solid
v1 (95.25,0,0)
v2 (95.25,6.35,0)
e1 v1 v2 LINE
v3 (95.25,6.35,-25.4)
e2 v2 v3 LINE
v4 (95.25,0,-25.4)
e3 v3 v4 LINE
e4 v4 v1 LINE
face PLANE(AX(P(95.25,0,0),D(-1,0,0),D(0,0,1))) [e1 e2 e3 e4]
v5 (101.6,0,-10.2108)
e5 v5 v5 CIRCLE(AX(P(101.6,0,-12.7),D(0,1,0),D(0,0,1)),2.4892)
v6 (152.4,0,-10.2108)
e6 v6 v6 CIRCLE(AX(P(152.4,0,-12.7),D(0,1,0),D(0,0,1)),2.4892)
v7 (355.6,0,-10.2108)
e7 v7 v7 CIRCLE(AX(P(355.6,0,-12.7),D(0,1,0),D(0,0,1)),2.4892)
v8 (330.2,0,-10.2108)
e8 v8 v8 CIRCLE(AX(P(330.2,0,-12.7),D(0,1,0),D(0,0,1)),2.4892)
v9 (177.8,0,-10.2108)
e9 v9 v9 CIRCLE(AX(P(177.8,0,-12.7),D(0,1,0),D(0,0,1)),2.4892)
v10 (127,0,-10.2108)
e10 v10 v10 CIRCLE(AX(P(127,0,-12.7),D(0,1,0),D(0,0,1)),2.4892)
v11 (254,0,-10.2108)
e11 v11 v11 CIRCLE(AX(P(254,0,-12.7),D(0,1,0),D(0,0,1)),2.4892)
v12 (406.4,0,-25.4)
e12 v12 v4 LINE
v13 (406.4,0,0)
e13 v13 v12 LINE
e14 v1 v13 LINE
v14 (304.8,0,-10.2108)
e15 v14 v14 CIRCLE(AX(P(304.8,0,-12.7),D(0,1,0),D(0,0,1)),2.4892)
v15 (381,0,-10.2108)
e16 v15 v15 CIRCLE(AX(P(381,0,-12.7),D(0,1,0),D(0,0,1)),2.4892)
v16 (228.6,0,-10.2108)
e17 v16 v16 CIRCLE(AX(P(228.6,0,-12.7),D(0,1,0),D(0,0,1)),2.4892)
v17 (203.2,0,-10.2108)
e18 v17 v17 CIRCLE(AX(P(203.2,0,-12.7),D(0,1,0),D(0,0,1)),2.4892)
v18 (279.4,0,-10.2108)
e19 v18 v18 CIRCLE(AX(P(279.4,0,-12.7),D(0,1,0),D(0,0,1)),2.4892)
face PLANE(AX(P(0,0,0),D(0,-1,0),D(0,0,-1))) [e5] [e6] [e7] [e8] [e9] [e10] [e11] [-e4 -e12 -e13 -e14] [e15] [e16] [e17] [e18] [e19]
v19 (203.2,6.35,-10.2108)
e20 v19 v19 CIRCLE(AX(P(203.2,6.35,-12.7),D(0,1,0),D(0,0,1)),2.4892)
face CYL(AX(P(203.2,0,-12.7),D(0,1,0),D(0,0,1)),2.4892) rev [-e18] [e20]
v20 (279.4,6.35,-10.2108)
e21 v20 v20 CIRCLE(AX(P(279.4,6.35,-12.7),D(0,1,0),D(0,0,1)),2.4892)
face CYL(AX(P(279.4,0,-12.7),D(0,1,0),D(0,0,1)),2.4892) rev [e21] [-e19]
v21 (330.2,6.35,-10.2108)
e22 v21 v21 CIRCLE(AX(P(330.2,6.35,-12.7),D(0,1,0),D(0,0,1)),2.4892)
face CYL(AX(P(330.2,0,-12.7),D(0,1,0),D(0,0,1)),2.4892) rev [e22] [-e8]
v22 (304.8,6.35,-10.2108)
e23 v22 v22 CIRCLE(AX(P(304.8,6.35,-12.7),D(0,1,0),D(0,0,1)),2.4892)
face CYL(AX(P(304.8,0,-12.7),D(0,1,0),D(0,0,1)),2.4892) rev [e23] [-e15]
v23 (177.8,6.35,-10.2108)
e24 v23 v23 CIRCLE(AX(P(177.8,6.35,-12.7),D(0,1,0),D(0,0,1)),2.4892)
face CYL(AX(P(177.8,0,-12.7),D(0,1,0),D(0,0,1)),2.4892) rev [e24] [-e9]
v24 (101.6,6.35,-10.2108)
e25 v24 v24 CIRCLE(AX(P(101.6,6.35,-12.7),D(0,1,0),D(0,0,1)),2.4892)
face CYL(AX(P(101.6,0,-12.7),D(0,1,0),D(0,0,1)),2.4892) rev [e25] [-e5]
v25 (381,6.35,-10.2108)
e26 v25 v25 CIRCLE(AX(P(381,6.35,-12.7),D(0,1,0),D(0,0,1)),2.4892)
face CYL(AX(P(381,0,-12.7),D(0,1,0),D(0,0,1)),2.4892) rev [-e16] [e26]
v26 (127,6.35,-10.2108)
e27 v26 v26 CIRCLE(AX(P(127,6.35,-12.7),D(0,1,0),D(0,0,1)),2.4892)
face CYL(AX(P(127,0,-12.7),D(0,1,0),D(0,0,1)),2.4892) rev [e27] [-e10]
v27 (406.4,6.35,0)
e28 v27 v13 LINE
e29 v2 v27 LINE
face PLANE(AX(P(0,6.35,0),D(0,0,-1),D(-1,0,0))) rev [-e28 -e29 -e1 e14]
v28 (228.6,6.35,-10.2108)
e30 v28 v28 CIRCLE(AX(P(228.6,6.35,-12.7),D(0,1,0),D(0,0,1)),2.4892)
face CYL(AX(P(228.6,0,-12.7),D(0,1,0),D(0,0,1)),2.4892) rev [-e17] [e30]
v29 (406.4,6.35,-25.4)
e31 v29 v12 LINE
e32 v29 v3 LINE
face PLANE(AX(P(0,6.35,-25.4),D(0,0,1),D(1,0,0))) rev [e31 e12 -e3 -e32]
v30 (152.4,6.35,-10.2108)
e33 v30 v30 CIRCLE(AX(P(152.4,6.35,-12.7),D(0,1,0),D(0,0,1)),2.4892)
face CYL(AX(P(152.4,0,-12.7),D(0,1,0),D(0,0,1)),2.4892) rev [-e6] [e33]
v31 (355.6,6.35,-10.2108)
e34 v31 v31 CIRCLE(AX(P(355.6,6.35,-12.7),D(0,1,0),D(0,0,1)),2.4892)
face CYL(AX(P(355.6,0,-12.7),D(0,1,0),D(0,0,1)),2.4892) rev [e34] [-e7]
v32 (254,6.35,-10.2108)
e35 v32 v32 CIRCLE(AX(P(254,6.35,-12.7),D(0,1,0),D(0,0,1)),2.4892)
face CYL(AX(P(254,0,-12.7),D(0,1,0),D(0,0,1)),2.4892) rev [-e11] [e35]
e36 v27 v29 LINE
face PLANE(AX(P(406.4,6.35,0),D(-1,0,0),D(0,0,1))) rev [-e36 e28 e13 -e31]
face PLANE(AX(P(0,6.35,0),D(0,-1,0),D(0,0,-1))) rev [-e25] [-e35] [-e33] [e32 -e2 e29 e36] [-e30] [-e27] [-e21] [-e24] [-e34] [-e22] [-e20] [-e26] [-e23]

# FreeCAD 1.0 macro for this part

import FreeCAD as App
import Part
import Sketcher

V = App.Vector
Q = App.Units.Quantity


def add_polygon(sketch, points):
    """Adds a closed chain of lines whose ends are joined by coincident constraints."""
    first, n = sketch.GeometryCount, len(points)
    for a, b in zip(points, points[1:] + points[:1]):
        sketch.addGeometry(Part.LineSegment(App.Vector(*a, 0), App.Vector(*b, 0)), False)
    for i in range(n):
        sketch.addConstraint(Sketcher.Constraint("Coincident", first + i, 2, first + (i + 1) % n, 1))

doc = App.newDocument("Part")
params = doc.addObject("Spreadsheet::Sheet", "Params")
for row, (alias, value) in enumerate([
    ("sketch1_width", "16 in"),
    ("sketch1_height", "1 in"),
    ("pad1_length", "0.25 in"),
    ("sketch2_diameter", "0.196 in"),
    ("sketch4_height", "1 in"),
    ("sketch4_width", "0.25 in"),
    ("pocket3_length", "3.75 in"),
], start=1):
    params.set(f"A{row}", alias)
    params.set(f"B{row}", "=" + value)
    params.setAlias(f"B{row}", alias)

body = doc.addObject("PartDesign::Body", "Body")

# Sketch on XZ plane
sketch1 = body.newObject("Sketcher::SketchObject", "Sketch")
sketch1.AttachmentSupport = (doc.getObject("XZ_Plane"), [""])
sketch1.MapMode = "FlatFace"
add_polygon(sketch1, [(0, -25), (0, 0), (406, 0), (406, -25)])  # lines 0-3
sketch1.addConstraint(Sketcher.Constraint("Vertical", 0))
sketch1.addConstraint(Sketcher.Constraint("Horizontal", 1))
sketch1.addConstraint(Sketcher.Constraint("Vertical", 2))
sketch1.addConstraint(Sketcher.Constraint("Horizontal", 3))
sketch1.addConstraint(Sketcher.Constraint("Coincident", 0, 2, -1, 1))
sketch1.addConstraint(Sketcher.Constraint("DistanceX", 1, 1, 1, 2, Q("16 in")))
sketch1.addConstraint(Sketcher.Constraint("DistanceY", 0, 1, 0, 2, Q("1 in")))
sketch1.setExpression("Constraints[9]", "Params.sketch1_width")
sketch1.setExpression("Constraints[10]", "Params.sketch1_height")
pad1 = body.newObject("PartDesign::Pad", "Pad")
pad1.Profile = sketch1
pad1.setExpression("Length", "Params.pad1_length")
pad1.Reversed = True

# Sketch on XZ plane
sketch2 = body.newObject("Sketcher::SketchObject", "Sketch001")
sketch2.AttachmentSupport = (doc.getObject("XZ_Plane"), [""])
sketch2.MapMode = "FlatFace"
sketch2.AttachmentOffset = App.Placement(V(0, 0, -0.25 * 25.4), App.Rotation())
sketch2.addGeometry(Part.Circle(V(381, -12.7, 0), V(0, 0, 1), 2.5), False)
sketch2.addGeometry(Part.Circle(V(355.6, -12.7, 0), V(0, 0, 1), 2.5), False)
sketch2.addGeometry(Part.Circle(V(330.2, -12.7, 0), V(0, 0, 1), 2.5), False)
sketch2.addGeometry(Part.Circle(V(304.8, -12.7, 0), V(0, 0, 1), 2.5), False)
sketch2.addGeometry(Part.Circle(V(279.4, -12.7, 0), V(0, 0, 1), 2.5), False)
sketch2.addGeometry(Part.Circle(V(254, -12.7, 0), V(0, 0, 1), 2.5), False)
sketch2.addGeometry(Part.Circle(V(228.6, -12.7, 0), V(0, 0, 1), 2.5), False)
sketch2.addGeometry(Part.Circle(V(203.2, -12.7, 0), V(0, 0, 1), 2.5), False)
sketch2.addGeometry(Part.Circle(V(177.8, -12.7, 0), V(0, 0, 1), 2.5), False)
sketch2.addGeometry(Part.Circle(V(152.4, -12.7, 0), V(0, 0, 1), 2.5), False)
sketch2.addGeometry(Part.Circle(V(127, -12.7, 0), V(0, 0, 1), 2.5), False)
sketch2.addGeometry(Part.Circle(V(101.6, -12.7, 0), V(0, 0, 1), 2.5), False)
sketch2.addConstraint(Sketcher.Constraint("Equal", 0, 1))
sketch2.addConstraint(Sketcher.Constraint("Equal", 1, 2))
sketch2.addConstraint(Sketcher.Constraint("Equal", 2, 3))
sketch2.addConstraint(Sketcher.Constraint("Equal", 3, 4))
sketch2.addConstraint(Sketcher.Constraint("Equal", 4, 5))
sketch2.addConstraint(Sketcher.Constraint("Equal", 5, 6))
sketch2.addConstraint(Sketcher.Constraint("Equal", 6, 7))
sketch2.addConstraint(Sketcher.Constraint("Equal", 7, 8))
sketch2.addConstraint(Sketcher.Constraint("Equal", 8, 9))
sketch2.addConstraint(Sketcher.Constraint("Equal", 9, 10))
sketch2.addConstraint(Sketcher.Constraint("Equal", 10, 11))
sketch2.addConstraint(Sketcher.Constraint("Horizontal", 0, 3, 1, 3))
sketch2.addConstraint(Sketcher.Constraint("Horizontal", 1, 3, 2, 3))
sketch2.addConstraint(Sketcher.Constraint("Horizontal", 2, 3, 3, 3))
sketch2.addConstraint(Sketcher.Constraint("Horizontal", 3, 3, 4, 3))
sketch2.addConstraint(Sketcher.Constraint("Horizontal", 4, 3, 5, 3))
sketch2.addConstraint(Sketcher.Constraint("Horizontal", 5, 3, 6, 3))
sketch2.addConstraint(Sketcher.Constraint("Horizontal", 6, 3, 7, 3))
sketch2.addConstraint(Sketcher.Constraint("Horizontal", 7, 3, 8, 3))
sketch2.addConstraint(Sketcher.Constraint("Horizontal", 8, 3, 9, 3))
sketch2.addConstraint(Sketcher.Constraint("Horizontal", 9, 3, 10, 3))
sketch2.addConstraint(Sketcher.Constraint("Horizontal", 10, 3, 11, 3))
sketch2.addConstraint(Sketcher.Constraint("Diameter", 0, Q("0.196 in")))
sketch2.addConstraint(Sketcher.Constraint("DistanceX", -1, 1, 0, 3, Q("15 in")))
sketch2.addConstraint(Sketcher.Constraint("DistanceX", -1, 1, 1, 3, Q("14 in")))
sketch2.addConstraint(Sketcher.Constraint("DistanceX", -1, 1, 2, 3, Q("13 in")))
sketch2.addConstraint(Sketcher.Constraint("DistanceX", -1, 1, 3, 3, Q("12 in")))
sketch2.addConstraint(Sketcher.Constraint("DistanceX", -1, 1, 4, 3, Q("11 in")))
sketch2.addConstraint(Sketcher.Constraint("DistanceX", -1, 1, 5, 3, Q("10 in")))
sketch2.addConstraint(Sketcher.Constraint("DistanceX", -1, 1, 6, 3, Q("9 in")))
sketch2.addConstraint(Sketcher.Constraint("DistanceX", -1, 1, 7, 3, Q("8 in")))
sketch2.addConstraint(Sketcher.Constraint("DistanceX", -1, 1, 8, 3, Q("7 in")))
sketch2.addConstraint(Sketcher.Constraint("DistanceX", -1, 1, 9, 3, Q("6 in")))
sketch2.addConstraint(Sketcher.Constraint("DistanceX", -1, 1, 10, 3, Q("5 in")))
sketch2.addConstraint(Sketcher.Constraint("DistanceX", -1, 1, 11, 3, Q("4 in")))
sketch2.addConstraint(Sketcher.Constraint("DistanceY", 0, 3, -1, 1, Q("0.5 in")))
sketch2.setExpression("Constraints[22]", "Params.sketch2_diameter")
pocket1 = body.newObject("PartDesign::Pocket", "Pocket")
pocket1.Profile = sketch2
pocket1.Type = "ThroughAll"
pocket1.Midplane = True

# Sketch on XZ plane
sketch3 = body.newObject("Sketcher::SketchObject", "Sketch002")
sketch3.AttachmentSupport = (doc.getObject("XZ_Plane"), [""])
sketch3.MapMode = "FlatFace"
sketch3.addGeometry(Part.Circle(V(63.5, -12.7, 0), V(0, 0, 1), 2.4), False)
sketch3.addGeometry(Part.Circle(V(38.1, -12.7, 0), V(0, 0, 1), 2.2), False)
sketch3.addConstraint(Sketcher.Constraint("Horizontal", 0, 3, 1, 3))
sketch3.addConstraint(Sketcher.Constraint("DistanceX", 1, 3, 0, 3, Q("1 in")))
sketch3.addConstraint(Sketcher.Constraint("DistanceX", -1, 1, 0, 3, Q("2.5 in")))
sketch3.addConstraint(Sketcher.Constraint("DistanceY", 0, 3, -1, 1, Q("0.5 in")))
sketch3.addConstraint(Sketcher.Constraint("Diameter", 0, Q("4.756141 mm")))
sketch3.addConstraint(Sketcher.Constraint("Diameter", 1, Q("4.414754 mm")))
pocket2 = body.newObject("PartDesign::Pocket", "Pocket001")
pocket2.Profile = sketch3
pocket2.Type = "ThroughAll"

# Sketch on YZ plane
sketch4 = body.newObject("Sketcher::SketchObject", "Sketch003")
sketch4.AttachmentSupport = (doc.getObject("YZ_Plane"), [""])
sketch4.MapMode = "FlatFace"
add_polygon(sketch4, [(6, -25), (0, -25), (0, 0), (6, 0)])  # lines 0-3
sketch4.addConstraint(Sketcher.Constraint("Horizontal", 0))
sketch4.addConstraint(Sketcher.Constraint("Vertical", 1))
sketch4.addConstraint(Sketcher.Constraint("Horizontal", 2))
sketch4.addConstraint(Sketcher.Constraint("Vertical", 3))
sketch4.addConstraint(Sketcher.Constraint("Coincident", 1, 2, -1, 1))
sketch4.addConstraint(Sketcher.Constraint("DistanceY", 1, 1, 1, 2, Q("1 in")))
sketch4.addConstraint(Sketcher.Constraint("DistanceX", 0, 2, 0, 1, Q("0.25 in")))
sketch4.setExpression("Constraints[9]", "Params.sketch4_height")
sketch4.setExpression("Constraints[10]", "Params.sketch4_width")
pocket3 = body.newObject("PartDesign::Pocket", "Pocket002")
pocket3.Profile = sketch4
pocket3.setExpression("Length", "Params.pocket3_length")
pocket3.Reversed = True

doc.recompute()
